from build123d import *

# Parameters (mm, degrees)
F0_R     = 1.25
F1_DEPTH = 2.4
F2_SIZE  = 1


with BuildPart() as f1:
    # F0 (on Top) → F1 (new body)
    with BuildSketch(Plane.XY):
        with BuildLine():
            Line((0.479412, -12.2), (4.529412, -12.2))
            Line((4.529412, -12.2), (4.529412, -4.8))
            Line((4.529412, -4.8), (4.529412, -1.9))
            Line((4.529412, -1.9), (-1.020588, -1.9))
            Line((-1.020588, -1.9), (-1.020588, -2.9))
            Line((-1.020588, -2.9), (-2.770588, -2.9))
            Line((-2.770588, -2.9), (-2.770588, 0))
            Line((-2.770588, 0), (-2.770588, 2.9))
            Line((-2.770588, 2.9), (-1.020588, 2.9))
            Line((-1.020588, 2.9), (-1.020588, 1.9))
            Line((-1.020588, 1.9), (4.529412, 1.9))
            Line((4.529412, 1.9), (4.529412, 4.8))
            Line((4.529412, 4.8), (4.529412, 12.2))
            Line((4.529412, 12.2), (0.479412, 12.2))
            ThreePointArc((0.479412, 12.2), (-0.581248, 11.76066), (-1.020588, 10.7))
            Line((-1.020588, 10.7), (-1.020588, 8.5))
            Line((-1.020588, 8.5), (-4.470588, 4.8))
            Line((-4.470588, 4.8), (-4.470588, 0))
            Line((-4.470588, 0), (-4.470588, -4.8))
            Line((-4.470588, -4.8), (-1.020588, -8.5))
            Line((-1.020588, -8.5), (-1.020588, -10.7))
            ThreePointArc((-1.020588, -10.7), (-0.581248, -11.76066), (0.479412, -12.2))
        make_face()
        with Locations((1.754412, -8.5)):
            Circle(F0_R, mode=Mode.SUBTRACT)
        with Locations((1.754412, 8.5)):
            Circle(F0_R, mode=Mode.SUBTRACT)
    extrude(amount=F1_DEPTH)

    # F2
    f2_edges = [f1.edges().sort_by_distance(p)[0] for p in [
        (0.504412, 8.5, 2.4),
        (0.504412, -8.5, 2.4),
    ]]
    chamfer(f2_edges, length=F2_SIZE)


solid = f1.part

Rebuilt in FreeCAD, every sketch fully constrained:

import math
import FreeCAD as App
import Part
import Sketcher
from FreeCAD import Vector


def edges_at(feature, points):
    """Names of the edges that pass closest to the given points."""
    edges = feature.Shape.Edges
    near = lambda p: min(range(len(edges)), key=lambda i: edges[i].distToShape(Part.Vertex(*p))[0])
    return sorted({f"Edge{near(p) + 1}" for p in points})

doc = App.newDocument("Part")
params = doc.addObject("Spreadsheet::Sheet", "Params")
for row, (alias, value) in enumerate([
    ("sketch1_diameter", "2.5 mm"),
    ("sketch1_radius", "1.500001 mm"),
    ("sketch1_height", "1 mm"),
    ("sketch1_height2", "10.3 mm"),
    ("sketch1_height3", "5.8 mm"),
    ("pad1_length", "2.4 mm"),
    ("chamfer_size", "1 mm"),
], start=1):
    params.set(f"A{row}", alias)
    params.set(f"B{row}", "=" + value)
    params.setAlias(f"B{row}", alias)

body = doc.addObject("PartDesign::Body", "Body")

# Sketch on XY plane
sketch1 = doc.addObject("Sketcher::SketchObject", "Sketch")
body.addObject(sketch1)
sketch1.AttachmentSupport = (doc.XY_Plane, [""])
sketch1.MapMode = "FlatFace"
sketch1.addGeometry(Part.LineSegment(Vector(0.479412, -12.2, 0), Vector(4.529412, -12.2, 0)), False)
sketch1.addGeometry(Part.LineSegment(Vector(4.529412, -12.2, 0), Vector(4.529412, -1.9, 0)), False)
sketch1.addGeometry(Part.LineSegment(Vector(4.529412, -1.9, 0), Vector(-1.020588, -1.9, 0)), False)
sketch1.addGeometry(Part.LineSegment(Vector(-1.020588, -1.9, 0), Vector(-1.020588, -2.9, 0)), False)
sketch1.addGeometry(Part.LineSegment(Vector(-1.020588, -2.9, 0), Vector(-2.770588, -2.9, 0)), False)
sketch1.addGeometry(Part.LineSegment(Vector(-2.770588, -2.9, 0), Vector(-2.770588, 2.9, 0)), False)
sketch1.addGeometry(Part.LineSegment(Vector(-2.770588, 2.9, 0), Vector(-1.020588, 2.9, 0)), False)
sketch1.addGeometry(Part.LineSegment(Vector(-1.020588, 2.9, 0), Vector(-1.020588, 1.9, 0)), False)
sketch1.addGeometry(Part.LineSegment(Vector(-1.020588, 1.9, 0), Vector(4.529412, 1.9, 0)), False)
sketch1.addGeometry(Part.LineSegment(Vector(4.529412, 1.9, 0), Vector(4.529412, 12.2, 0)), False)
sketch1.addGeometry(Part.LineSegment(Vector(4.529412, 12.2, 0), Vector(0.479412, 12.2, 0)), False)
sketch1.addGeometry(Part.ArcOfCircle(Part.Circle(Vector(0.479413, 10.699999, 0), Vector(0, 0, 1), 1.500001), math.radians(90.000022), math.radians(179.999978)), False)
sketch1.addGeometry(Part.LineSegment(Vector(-1.020588, 10.7, 0), Vector(-1.020588, 8.5, 0)), False)
sketch1.addGeometry(Part.LineSegment(Vector(-1.020588, 8.5, 0), Vector(-4.470588, 4.8, 0)), False)
sketch1.addGeometry(Part.LineSegment(Vector(-4.470588, 4.8, 0), Vector(-4.470588, -4.8, 0)), False)
sketch1.addGeometry(Part.LineSegment(Vector(-4.470588, -4.8, 0), Vector(-1.020588, -8.5, 0)), False)
sketch1.addGeometry(Part.LineSegment(Vector(-1.020588, -8.5, 0), Vector(-1.020588, -10.7, 0)), False)
sketch1.addGeometry(Part.ArcOfCircle(Part.Circle(Vector(0.479413, -10.699999, 0), Vector(0, 0, 1), 1.500001), math.radians(-179.999978), math.radians(-90.000022)), False)
sketch1.addGeometry(Part.Circle(Vector(1.754412, -8.5, 0), Vector(0, 0, 1), 1.25), False)
sketch1.addGeometry(Part.Circle(Vector(1.754412, 8.5, 0), Vector(0, 0, 1), 1.25), False)
sketch1.addConstraint(Sketcher.Constraint("Coincident", 0, 2, 1, 1))
sketch1.addConstraint(Sketcher.Constraint("Coincident", 1, 2, 2, 1))
sketch1.addConstraint(Sketcher.Constraint("Coincident", 2, 2, 3, 1))
sketch1.addConstraint(Sketcher.Constraint("Coincident", 3, 2, 4, 1))
sketch1.addConstraint(Sketcher.Constraint("Coincident", 4, 2, 5, 1))
sketch1.addConstraint(Sketcher.Constraint("Coincident", 5, 2, 6, 1))
sketch1.addConstraint(Sketcher.Constraint("Coincident", 6, 2, 7, 1))
sketch1.addConstraint(Sketcher.Constraint("Coincident", 7, 2, 8, 1))
sketch1.addConstraint(Sketcher.Constraint("Coincident", 8, 2, 9, 1))
sketch1.addConstraint(Sketcher.Constraint("Coincident", 9, 2, 10, 1))
sketch1.addConstraint(Sketcher.Constraint("Tangent", 10, 2, 11, 1))
sketch1.addConstraint(Sketcher.Constraint("Tangent", 11, 2, 12, 1))
sketch1.addConstraint(Sketcher.Constraint("Coincident", 12, 2, 13, 1))
sketch1.addConstraint(Sketcher.Constraint("Coincident", 13, 2, 14, 1))
sketch1.addConstraint(Sketcher.Constraint("Coincident", 14, 2, 15, 1))
sketch1.addConstraint(Sketcher.Constraint("Coincident", 15, 2, 16, 1))
sketch1.addConstraint(Sketcher.Constraint("Tangent", 16, 2, 17, 1))
sketch1.addConstraint(Sketcher.Constraint("Tangent", 17, 2, 0, 1))
sketch1.addConstraint(Sketcher.Constraint("Horizontal", 0))
sketch1.addConstraint(Sketcher.Constraint("Vertical", 1))
sketch1.addConstraint(Sketcher.Constraint("Horizontal", 2))
sketch1.addConstraint(Sketcher.Constraint("Vertical", 3))
sketch1.addConstraint(Sketcher.Constraint("Horizontal", 4))
sketch1.addConstraint(Sketcher.Constraint("Vertical", 5))
sketch1.addConstraint(Sketcher.Constraint("Horizontal", 6))
sketch1.addConstraint(Sketcher.Constraint("Vertical", 7))
sketch1.addConstraint(Sketcher.Constraint("Horizontal", 8))
sketch1.addConstraint(Sketcher.Constraint("Vertical", 9))
sketch1.addConstraint(Sketcher.Constraint("Horizontal", 10))
sketch1.addConstraint(Sketcher.Constraint("Vertical", 12))
sketch1.addConstraint(Sketcher.Constraint("Vertical", 14))
sketch1.addConstraint(Sketcher.Constraint("Vertical", 16))
sketch1.addConstraint(Sketcher.Constraint("Equal", 11, 17))
sketch1.addConstraint(Sketcher.Constraint("Equal", 18, 19))
sketch1.addConstraint(Sketcher.Constraint("Symmetric", 11, 3, 17, 3, -1))
sketch1.addConstraint(Sketcher.Constraint("Symmetric", 18, 3, 19, 3, -1))
sketch1.addConstraint(Sketcher.Constraint("Symmetric", 3, 2, 6, 2, -1))
sketch1.addConstraint(Sketcher.Constraint("Symmetric", 1, 2, 8, 2, -1))
sketch1.addConstraint(Sketcher.Constraint("Horizontal", 19, 3, 12, 2))
sketch1.addConstraint(Sketcher.Constraint("Horizontal", 18, 3, 15, 2))
sketch1.addConstraint(Sketcher.Constraint("Vertical", 7, 2, 11, 2))
sketch1.addConstraint(Sketcher.Constraint("Equal", 13, 15))
sketch1.addConstraint(Sketcher.Constraint("Diameter", 18, 2.5))
sketch1.addConstraint(Sketcher.Constraint("Radius", 11, 1.500001))
sketch1.addConstraint(Sketcher.Constraint("DistanceY", 3, 2, 3, 1, 1.0))
sketch1.addConstraint(Sketcher.Constraint("DistanceY", 1, 1, 1, 2, 10.3))
sketch1.addConstraint(Sketcher.Constraint("DistanceY", 5, 1, 5, 2, 5.8))
sketch1.addConstraint(Sketcher.Constraint("DistanceY", 12, 2, 12, 1, 2.2))
sketch1.addConstraint(Sketcher.Constraint("DistanceY", 14, 2, 14, 1, 9.6))
sketch1.addConstraint(Sketcher.Constraint("DistanceX", 0, 1, 0, 2, 4.05))
sketch1.addConstraint(Sketcher.Constraint("DistanceX", 4, 2, 4, 1, 1.75))
sketch1.addConstraint(Sketcher.Constraint("DistanceX", 13, 2, 5, 2, 1.7))
sketch1.addConstraint(Sketcher.Constraint("DistanceX", 17, 3, 18, 3, 1.274999))
sketch1.addConstraint(Sketcher.Constraint("DistanceX", -1, 1, 0, 2, 4.529412))
sketch1.setExpression("Constraints[42]", "Params.sketch1_diameter")
sketch1.setExpression("Constraints[43]", "Params.sketch1_radius")
sketch1.setExpression("Constraints[44]", "Params.sketch1_height")
sketch1.setExpression("Constraints[45]", "Params.sketch1_height2")
sketch1.setExpression("Constraints[46]", "Params.sketch1_height3")
pad1 = doc.addObject("PartDesign::Pad", "Pad")
body.addObject(pad1)
pad1.Profile = sketch1
pad1.setExpression("Length", "Params.pad1_length")
doc.recompute()

chamfer = doc.addObject("PartDesign::Chamfer", "Chamfer")
body.addObject(chamfer)
chamfer.Base = (pad1, edges_at(pad1, [(0.504, 8.5, 2.4), (0.504, -8.5, 2.4)]))
chamfer.setExpression("Size", "Params.chamfer_size")

doc.recompute()
